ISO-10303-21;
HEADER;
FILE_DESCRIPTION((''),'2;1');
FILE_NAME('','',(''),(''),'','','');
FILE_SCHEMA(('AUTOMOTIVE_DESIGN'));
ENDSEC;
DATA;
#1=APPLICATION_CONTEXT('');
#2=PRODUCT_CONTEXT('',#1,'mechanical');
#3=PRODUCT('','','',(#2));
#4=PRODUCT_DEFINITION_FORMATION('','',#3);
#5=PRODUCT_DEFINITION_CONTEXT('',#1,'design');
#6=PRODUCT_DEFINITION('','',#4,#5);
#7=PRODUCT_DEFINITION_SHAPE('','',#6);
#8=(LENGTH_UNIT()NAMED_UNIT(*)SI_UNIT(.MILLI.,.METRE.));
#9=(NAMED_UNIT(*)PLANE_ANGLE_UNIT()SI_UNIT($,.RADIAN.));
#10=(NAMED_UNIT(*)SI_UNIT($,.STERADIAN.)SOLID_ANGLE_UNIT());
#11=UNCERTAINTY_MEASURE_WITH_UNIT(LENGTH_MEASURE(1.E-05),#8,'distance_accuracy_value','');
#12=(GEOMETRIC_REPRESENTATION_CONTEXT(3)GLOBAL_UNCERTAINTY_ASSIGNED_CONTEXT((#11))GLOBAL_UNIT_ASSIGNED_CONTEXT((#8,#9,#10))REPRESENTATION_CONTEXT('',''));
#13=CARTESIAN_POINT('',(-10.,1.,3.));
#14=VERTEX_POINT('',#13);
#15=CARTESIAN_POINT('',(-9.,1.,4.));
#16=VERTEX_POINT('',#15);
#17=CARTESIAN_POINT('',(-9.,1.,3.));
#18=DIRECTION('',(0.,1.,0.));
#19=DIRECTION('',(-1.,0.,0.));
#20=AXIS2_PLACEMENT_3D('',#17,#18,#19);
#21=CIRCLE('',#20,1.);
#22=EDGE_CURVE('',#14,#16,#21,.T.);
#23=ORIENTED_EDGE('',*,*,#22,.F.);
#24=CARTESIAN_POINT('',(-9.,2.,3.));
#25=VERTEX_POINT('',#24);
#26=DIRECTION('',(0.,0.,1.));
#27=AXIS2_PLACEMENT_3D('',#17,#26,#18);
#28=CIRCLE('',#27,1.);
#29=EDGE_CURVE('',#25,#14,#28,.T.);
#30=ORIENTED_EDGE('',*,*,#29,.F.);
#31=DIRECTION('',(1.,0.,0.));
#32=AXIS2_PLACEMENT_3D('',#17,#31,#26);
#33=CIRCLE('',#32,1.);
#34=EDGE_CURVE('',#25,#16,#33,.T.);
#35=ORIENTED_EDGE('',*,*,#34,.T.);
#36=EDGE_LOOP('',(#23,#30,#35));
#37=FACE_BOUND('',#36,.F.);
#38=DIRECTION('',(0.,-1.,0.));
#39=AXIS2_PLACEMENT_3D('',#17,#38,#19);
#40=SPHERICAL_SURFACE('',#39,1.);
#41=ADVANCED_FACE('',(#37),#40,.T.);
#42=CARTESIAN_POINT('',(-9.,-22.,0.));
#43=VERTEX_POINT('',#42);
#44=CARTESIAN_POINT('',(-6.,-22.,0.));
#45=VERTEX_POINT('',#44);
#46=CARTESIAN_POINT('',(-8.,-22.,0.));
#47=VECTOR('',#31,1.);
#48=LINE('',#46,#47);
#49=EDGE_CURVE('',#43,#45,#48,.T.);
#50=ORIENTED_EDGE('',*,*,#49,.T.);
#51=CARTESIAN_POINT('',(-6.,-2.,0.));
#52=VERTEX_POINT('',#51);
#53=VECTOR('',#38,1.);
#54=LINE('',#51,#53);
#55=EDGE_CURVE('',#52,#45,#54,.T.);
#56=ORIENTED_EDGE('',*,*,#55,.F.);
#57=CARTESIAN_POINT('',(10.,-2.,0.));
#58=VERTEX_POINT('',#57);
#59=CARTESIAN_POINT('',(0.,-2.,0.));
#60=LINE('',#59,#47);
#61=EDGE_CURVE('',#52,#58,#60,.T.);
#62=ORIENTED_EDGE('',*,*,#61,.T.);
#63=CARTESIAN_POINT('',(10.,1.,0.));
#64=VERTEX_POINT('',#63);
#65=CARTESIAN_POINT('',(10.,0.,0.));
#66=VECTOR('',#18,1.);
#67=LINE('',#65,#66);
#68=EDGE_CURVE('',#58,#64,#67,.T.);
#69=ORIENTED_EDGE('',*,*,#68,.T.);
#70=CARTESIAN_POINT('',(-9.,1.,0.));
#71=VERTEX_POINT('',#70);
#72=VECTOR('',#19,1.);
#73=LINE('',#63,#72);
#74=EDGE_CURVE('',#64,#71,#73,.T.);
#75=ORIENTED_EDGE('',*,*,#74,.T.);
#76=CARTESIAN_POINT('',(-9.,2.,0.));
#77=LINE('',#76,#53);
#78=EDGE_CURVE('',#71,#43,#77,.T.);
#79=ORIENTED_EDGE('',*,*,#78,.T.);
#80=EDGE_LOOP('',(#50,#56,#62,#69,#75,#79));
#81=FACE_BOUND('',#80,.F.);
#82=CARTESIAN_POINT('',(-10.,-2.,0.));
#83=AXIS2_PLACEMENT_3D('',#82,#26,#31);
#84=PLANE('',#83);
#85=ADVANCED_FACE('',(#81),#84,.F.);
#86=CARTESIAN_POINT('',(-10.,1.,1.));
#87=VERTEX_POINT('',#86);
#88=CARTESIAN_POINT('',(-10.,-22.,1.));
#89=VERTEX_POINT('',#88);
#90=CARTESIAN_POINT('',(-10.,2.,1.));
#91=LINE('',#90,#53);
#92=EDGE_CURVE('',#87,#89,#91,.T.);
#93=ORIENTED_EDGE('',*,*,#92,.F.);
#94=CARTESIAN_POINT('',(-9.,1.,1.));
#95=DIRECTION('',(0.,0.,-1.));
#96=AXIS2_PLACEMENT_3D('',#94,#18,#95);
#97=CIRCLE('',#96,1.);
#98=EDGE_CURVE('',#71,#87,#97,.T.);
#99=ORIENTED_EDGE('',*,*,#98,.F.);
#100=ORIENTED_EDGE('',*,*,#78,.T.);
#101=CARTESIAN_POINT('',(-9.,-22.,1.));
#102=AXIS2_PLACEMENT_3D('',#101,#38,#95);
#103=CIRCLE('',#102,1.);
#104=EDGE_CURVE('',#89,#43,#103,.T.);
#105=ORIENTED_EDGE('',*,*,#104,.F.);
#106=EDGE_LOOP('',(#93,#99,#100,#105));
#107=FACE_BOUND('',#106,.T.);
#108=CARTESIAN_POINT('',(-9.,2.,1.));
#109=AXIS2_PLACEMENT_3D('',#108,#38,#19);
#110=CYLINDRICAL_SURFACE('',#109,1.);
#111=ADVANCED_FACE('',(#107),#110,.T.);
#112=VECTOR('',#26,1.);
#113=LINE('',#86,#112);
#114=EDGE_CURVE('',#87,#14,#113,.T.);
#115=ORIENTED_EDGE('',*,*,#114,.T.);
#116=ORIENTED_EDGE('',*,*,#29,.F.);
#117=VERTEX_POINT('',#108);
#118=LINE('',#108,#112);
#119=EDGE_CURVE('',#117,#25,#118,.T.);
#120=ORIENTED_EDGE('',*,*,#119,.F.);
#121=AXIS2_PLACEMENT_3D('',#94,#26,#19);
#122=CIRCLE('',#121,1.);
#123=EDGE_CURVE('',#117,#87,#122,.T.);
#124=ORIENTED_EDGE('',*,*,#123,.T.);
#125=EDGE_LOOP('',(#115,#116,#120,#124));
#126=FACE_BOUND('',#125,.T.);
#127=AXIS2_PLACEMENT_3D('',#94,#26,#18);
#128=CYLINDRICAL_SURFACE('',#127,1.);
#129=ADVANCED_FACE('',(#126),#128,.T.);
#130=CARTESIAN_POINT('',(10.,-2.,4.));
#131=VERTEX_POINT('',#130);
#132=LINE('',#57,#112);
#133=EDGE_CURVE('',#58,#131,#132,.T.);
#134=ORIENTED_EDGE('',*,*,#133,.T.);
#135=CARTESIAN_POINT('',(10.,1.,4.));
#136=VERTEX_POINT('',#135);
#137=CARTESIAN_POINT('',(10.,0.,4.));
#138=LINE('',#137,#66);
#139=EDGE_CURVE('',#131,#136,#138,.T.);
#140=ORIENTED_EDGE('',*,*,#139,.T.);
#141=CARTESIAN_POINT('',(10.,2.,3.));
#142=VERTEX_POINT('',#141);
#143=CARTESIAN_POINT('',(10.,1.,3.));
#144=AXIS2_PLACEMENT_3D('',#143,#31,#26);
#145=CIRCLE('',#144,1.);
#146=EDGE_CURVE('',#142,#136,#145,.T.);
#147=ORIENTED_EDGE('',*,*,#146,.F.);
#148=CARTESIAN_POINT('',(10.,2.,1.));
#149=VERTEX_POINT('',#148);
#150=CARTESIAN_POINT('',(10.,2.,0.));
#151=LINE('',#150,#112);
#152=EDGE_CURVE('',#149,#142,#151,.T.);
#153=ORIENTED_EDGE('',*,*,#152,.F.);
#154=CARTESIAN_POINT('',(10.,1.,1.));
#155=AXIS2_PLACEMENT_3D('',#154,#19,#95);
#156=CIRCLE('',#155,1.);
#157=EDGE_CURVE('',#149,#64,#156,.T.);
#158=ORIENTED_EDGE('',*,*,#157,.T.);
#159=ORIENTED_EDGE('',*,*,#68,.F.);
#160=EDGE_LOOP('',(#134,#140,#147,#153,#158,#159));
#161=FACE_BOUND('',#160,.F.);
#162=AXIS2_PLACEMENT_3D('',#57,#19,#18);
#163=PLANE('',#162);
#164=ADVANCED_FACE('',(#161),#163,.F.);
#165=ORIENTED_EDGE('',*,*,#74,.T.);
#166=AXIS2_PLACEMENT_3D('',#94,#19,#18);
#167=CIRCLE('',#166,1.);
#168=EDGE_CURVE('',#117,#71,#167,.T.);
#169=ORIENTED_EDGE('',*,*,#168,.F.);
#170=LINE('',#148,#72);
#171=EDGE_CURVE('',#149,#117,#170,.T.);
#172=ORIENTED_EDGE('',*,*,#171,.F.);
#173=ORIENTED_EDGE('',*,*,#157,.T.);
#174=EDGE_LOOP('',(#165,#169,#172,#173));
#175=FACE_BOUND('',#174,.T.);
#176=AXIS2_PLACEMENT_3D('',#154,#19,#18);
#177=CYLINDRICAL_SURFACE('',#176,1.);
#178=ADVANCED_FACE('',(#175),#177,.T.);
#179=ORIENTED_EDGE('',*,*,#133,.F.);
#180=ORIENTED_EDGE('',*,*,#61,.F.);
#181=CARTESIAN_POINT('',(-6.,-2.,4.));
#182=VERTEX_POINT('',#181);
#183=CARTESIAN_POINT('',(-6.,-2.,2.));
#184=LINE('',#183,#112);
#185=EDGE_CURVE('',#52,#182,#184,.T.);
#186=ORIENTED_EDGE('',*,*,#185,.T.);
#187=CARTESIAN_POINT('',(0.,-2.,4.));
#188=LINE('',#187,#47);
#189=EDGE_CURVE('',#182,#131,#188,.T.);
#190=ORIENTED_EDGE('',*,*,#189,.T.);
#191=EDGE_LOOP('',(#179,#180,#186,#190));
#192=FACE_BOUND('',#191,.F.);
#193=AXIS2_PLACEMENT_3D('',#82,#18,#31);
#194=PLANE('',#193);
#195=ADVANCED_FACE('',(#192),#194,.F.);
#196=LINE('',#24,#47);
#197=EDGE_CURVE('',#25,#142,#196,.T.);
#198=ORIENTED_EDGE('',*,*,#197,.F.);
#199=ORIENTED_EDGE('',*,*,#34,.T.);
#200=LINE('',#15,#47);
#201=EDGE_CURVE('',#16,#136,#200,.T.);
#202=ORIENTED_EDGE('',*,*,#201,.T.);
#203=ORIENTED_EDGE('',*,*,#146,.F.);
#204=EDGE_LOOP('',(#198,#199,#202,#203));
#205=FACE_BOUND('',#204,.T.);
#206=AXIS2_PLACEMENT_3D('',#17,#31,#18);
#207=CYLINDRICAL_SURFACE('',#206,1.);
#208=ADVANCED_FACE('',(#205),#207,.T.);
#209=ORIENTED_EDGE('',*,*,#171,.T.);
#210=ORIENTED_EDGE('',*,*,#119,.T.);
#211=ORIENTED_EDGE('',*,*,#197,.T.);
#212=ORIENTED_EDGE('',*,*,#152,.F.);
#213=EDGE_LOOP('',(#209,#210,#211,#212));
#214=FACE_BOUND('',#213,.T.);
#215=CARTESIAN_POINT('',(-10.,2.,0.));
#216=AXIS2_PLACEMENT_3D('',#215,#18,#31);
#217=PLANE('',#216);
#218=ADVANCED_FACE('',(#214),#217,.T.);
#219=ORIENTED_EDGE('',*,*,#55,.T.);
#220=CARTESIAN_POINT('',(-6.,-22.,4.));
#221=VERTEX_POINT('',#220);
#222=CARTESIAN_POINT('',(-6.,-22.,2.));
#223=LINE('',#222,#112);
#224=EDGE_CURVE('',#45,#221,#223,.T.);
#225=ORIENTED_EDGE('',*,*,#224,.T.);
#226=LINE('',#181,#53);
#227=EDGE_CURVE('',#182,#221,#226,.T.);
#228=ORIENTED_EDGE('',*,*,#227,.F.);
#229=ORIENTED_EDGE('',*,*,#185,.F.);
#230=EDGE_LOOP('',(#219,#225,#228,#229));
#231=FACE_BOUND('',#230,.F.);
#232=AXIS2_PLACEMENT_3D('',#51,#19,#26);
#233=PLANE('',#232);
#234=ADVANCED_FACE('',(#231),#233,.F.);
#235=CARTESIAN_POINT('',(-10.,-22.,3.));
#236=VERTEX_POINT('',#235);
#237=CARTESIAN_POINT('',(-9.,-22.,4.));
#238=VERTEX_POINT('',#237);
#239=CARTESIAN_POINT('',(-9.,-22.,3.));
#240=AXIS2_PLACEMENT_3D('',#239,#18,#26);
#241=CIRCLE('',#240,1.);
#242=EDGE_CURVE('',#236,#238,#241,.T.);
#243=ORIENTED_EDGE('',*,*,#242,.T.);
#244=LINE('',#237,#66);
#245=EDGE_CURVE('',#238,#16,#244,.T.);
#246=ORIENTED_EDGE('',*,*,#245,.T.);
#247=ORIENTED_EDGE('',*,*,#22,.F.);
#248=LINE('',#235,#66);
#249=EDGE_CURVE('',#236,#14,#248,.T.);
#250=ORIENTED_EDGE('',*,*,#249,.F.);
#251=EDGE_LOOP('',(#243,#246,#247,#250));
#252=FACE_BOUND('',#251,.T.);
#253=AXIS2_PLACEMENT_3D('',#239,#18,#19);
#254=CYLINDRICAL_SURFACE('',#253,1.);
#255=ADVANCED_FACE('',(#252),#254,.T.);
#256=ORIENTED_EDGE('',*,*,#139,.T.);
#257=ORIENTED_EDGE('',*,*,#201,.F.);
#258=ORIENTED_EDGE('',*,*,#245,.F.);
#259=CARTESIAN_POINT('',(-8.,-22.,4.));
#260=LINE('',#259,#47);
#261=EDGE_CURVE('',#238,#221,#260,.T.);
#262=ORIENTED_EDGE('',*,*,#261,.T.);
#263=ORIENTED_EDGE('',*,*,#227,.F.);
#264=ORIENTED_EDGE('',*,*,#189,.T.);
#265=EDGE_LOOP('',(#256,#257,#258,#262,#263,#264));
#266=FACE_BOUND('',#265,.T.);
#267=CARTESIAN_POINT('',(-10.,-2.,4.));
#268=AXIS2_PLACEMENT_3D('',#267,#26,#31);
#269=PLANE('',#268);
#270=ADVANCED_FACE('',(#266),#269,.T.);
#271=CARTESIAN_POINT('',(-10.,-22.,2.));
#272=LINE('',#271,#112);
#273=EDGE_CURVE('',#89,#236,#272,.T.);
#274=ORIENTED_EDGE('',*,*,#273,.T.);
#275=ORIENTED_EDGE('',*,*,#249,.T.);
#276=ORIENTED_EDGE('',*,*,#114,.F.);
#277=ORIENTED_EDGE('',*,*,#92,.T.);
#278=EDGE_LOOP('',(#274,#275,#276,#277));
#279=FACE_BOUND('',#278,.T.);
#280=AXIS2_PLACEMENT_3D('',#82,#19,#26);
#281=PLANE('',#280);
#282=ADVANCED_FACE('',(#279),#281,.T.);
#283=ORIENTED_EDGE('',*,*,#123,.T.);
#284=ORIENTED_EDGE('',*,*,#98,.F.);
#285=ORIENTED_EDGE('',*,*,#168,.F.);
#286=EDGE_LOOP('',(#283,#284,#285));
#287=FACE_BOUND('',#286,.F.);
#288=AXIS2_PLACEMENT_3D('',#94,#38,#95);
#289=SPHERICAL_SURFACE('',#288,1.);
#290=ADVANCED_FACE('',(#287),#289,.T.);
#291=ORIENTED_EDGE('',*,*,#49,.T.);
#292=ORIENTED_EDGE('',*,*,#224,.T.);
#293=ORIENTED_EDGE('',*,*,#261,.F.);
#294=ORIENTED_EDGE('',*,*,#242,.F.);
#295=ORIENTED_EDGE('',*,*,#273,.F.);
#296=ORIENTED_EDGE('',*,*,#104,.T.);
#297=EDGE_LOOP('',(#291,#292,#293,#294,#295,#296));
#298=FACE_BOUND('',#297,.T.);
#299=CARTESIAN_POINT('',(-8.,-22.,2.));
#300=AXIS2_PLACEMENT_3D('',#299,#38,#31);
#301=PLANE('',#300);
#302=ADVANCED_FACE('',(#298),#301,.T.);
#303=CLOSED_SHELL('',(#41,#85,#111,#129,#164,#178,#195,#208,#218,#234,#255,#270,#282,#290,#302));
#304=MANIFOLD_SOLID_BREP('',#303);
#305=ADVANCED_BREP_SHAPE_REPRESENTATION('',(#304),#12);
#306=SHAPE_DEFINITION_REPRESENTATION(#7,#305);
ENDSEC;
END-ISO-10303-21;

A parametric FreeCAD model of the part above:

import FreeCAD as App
import Part
import Sketcher
from FreeCAD import Vector
Q = App.Units.Quantity


def edges_at(feature, points):
    """Names of the edges that pass closest to the given points."""
    edges = feature.Shape.Edges
    near = lambda p: min(range(len(edges)), key=lambda i: edges[i].distToShape(Part.Vertex(*p))[0])
    return sorted({f"Edge{near(p) + 1}" for p in points})


def add_polygon(sketch, points):
    """Adds a closed chain of lines whose ends are joined by coincident constraints."""
    first, n = sketch.GeometryCount, len(points)
    for a, b in zip(points, points[1:] + points[:1]):
        sketch.addGeometry(Part.LineSegment(App.Vector(*a, 0), App.Vector(*b, 0)), False)
    for i in range(n):
        sketch.addConstraint(Sketcher.Constraint("Coincident", first + i, 2, first + (i + 1) % n, 1))

doc = App.newDocument("Part")
params = doc.addObject("Spreadsheet::Sheet", "Params")
for row, (alias, value) in enumerate([
    ("sketch1_width", "20 mm"),
    ("sketch1_height", "4 mm"),
    ("pad1_length", "4 mm"),
    ("sketch2_width", "4 mm"),
    ("pad2_length", "20 mm"),
    ("fillet_radius", "1 mm"),
    ("fillet2_radius", "1 mm"),
    ("fillet3_radius", "1 mm"),
], start=1):
    params.set(f"A{row}", alias)
    params.set(f"B{row}", "=" + value)
    params.setAlias(f"B{row}", alias)

body = doc.addObject("PartDesign::Body", "Body")

sketch1 = body.newObject("Sketcher::SketchObject", "Sketch")
sketch1.AttachmentSupport = (doc.getObject("XY_Plane"), [""])
sketch1.MapMode = "FlatFace"
add_polygon(sketch1, [(-10, 2), (-10, -2), (10, -2), (10, 2)])
sketch1.addConstraint(Sketcher.Constraint("Vertical", 0))
sketch1.addConstraint(Sketcher.Constraint("Horizontal", 1))
sketch1.addConstraint(Sketcher.Constraint("Vertical", 2))
sketch1.addConstraint(Sketcher.Constraint("Horizontal", 3))
sketch1.addConstraint(Sketcher.Constraint("Symmetric", 0, 2, 2, 2, -1, 1))
sketch1.addConstraint(Sketcher.Constraint("DistanceX", 1, 1, 1, 2, Q("20 mm")))
sketch1.addConstraint(Sketcher.Constraint("DistanceY", 0, 2, 0, 1, Q("4 mm")))
sketch1.setExpression("Constraints[9]", "Params.sketch1_width")
sketch1.setExpression("Constraints[10]", "Params.sketch1_height")
pad1 = body.newObject("PartDesign::Pad", "Pad")
pad1.Profile = sketch1
pad1.setExpression("Length", "Params.pad1_length")

sketch2 = body.newObject("Sketcher::SketchObject", "Sketch001")
sketch2.AttachmentSupport = (doc.getObject("XZ_Plane"), [""])
sketch2.MapMode = "FlatFace"
sketch2.AttachmentOffset = App.Placement(Vector(0, 0, 2), App.Rotation())
add_polygon(sketch2, [(-10, 4), (-10, 0), (-6, 0), (-6, 4)])
sketch2.addConstraint(Sketcher.Constraint("Vertical", 0))
sketch2.addConstraint(Sketcher.Constraint("Horizontal", 1))
sketch2.addConstraint(Sketcher.Constraint("Vertical", 2))
sketch2.addConstraint(Sketcher.Constraint("Horizontal", 3))
sketch2.addConstraint(Sketcher.Constraint("PointOnObject", 0, 2, -1))
sketch2.addConstraint(Sketcher.Constraint("Equal", 3, 0))
sketch2.addConstraint(Sketcher.Constraint("DistanceX", 1, 1, 1, 2, Q("4 mm")))
sketch2.addConstraint(Sketcher.Constraint("DistanceX", 0, 2, -1, 1, Q("10 mm")))
sketch2.setExpression("Constraints[10]", "Params.sketch2_width")
pad2 = body.newObject("PartDesign::Pad", "Pad001")
pad2.Profile = sketch2
pad2.setExpression("Length", "Params.pad2_length")
doc.recompute()

fillet = body.newObject("PartDesign::Fillet", "Fillet")
fillet.Base = (pad2, edges_at(pad2, [(-10, -10, 4)]))
fillet.setExpression("Radius", "Params.fillet_radius")
doc.recompute()

fillet2 = body.newObject("PartDesign::Fillet", "Fillet001")
fillet2.Base = (fillet, edges_at(fillet, [(-10, -10, 0)]))
fillet2.setExpression("Radius", "Params.fillet2_radius")
doc.recompute()

fillet3 = body.newObject("PartDesign::Fillet", "Fillet002")
fillet3.Base = (fillet2, edges_at(fillet2, [(0.5, 2, 4), (0.5, 2, 0)]))
fillet3.setExpression("Radius", "Params.fillet3_radius")

doc.recompute()
